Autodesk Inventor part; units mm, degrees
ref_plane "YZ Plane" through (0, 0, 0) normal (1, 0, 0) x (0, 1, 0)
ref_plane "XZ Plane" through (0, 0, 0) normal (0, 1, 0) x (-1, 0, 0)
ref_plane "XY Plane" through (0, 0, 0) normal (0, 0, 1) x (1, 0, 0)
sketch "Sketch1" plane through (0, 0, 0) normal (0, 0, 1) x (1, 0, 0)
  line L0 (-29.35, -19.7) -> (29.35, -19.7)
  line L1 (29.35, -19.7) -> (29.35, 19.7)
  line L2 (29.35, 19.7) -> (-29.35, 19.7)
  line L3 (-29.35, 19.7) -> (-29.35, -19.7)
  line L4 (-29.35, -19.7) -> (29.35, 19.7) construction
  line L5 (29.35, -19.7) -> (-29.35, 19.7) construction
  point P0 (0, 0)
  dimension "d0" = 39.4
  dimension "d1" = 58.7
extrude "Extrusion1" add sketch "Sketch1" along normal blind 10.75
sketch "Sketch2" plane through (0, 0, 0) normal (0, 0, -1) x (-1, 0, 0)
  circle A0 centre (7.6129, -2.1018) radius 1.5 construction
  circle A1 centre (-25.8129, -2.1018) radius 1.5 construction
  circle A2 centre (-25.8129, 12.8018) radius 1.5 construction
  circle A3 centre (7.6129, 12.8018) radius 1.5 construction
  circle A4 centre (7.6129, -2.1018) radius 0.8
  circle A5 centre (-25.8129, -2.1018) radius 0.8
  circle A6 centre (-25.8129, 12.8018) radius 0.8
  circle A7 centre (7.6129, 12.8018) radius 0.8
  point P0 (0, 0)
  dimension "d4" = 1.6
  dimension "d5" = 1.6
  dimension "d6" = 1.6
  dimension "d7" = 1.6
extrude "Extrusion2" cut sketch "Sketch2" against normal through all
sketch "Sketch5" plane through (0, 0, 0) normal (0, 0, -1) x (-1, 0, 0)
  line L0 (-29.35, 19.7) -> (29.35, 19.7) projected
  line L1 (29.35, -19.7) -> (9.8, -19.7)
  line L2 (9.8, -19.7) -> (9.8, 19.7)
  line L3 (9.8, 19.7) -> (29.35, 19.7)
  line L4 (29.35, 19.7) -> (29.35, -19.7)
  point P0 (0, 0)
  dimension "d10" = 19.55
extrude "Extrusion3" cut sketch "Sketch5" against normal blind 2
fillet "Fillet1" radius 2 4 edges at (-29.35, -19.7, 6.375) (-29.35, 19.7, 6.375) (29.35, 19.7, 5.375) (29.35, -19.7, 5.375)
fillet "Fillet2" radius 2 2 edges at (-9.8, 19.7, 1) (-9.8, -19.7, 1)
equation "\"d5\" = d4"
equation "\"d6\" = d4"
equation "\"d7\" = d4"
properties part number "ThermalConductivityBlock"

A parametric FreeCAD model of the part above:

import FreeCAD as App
import Part
import Sketcher


def edges_at(feature, points):
    """Names of the edges that pass closest to the given points."""
    edges = feature.Shape.Edges
    near = lambda p: min(range(len(edges)), key=lambda i: edges[i].distToShape(Part.Vertex(*p))[0])
    return sorted({f"Edge{near(p) + 1}" for p in points})

doc = App.newDocument("Part")
body = doc.addObject("PartDesign::Body", "Body")

# Sketch on XY plane
sketch1 = body.newObject("Sketcher::SketchObject", "Sketch")
sketch1.AttachmentSupport = (doc.getObject("XY_Plane"), [""])
sketch1.MapMode = "FlatFace"
sketch1.addGeometry([
    Part.LineSegment(App.Vector(-29, 20, 0), App.Vector(-29, -20, 0)),
    Part.LineSegment(App.Vector(-29, -20, 0), App.Vector(29, -20, 0)),
    Part.LineSegment(App.Vector(29, -20, 0), App.Vector(29, 20, 0)),
    Part.LineSegment(App.Vector(29, 20, 0), App.Vector(-29, 20, 0)),
], False)
sketch1.addConstraint([
    Sketcher.Constraint("Coincident", 0, 2, 1, 1),
    Sketcher.Constraint("Coincident", 1, 2, 2, 1),
    Sketcher.Constraint("Coincident", 2, 2, 3, 1),
    Sketcher.Constraint("Coincident", 3, 2, 0, 1),
    Sketcher.Constraint("Vertical", 0),
    Sketcher.Constraint("Horizontal", 1),
    Sketcher.Constraint("Vertical", 2),
    Sketcher.Constraint("Horizontal", 3),
    Sketcher.Constraint("Symmetric", 0, 2, 2, 2, -1, 1),
    Sketcher.Constraint("DistanceX", 1, 1, 1, 2, 58.7),
    Sketcher.Constraint("DistanceY", 0, 2, 0, 1, 39.4),
])
pad1 = body.newObject("PartDesign::Pad", "Pad")
pad1.Profile = sketch1
pad1.Length = 10.75

# Sketch on XY plane
sketch2 = body.newObject("Sketcher::SketchObject", "Sketch001")
sketch2.AttachmentSupport = (doc.getObject("XY_Plane"), [""])
sketch2.MapMode = "FlatFace"
sketch2.addGeometry([
    Part.Circle(App.Vector(-7.6, -2.1, 0), App.Vector(0, 0, 1), 0.8),
    Part.Circle(App.Vector(25.8, -2.1, 0), App.Vector(0, 0, 1), 0.8),
    Part.Circle(App.Vector(25.8, 12.8, 0), App.Vector(0, 0, 1), 0.8),
    Part.Circle(App.Vector(-7.6, 12.8, 0), App.Vector(0, 0, 1), 0.8),
], False)
sketch2.addConstraint([
    Sketcher.Constraint("Equal", 0, 1),
    Sketcher.Constraint("Equal", 1, 2),
    Sketcher.Constraint("Equal", 2, 3),
    Sketcher.Constraint("Horizontal", 0, 3, 1, 3),
    Sketcher.Constraint("Horizontal", 2, 3, 3, 3),
    Sketcher.Constraint("Vertical", 1, 3, 2, 3),
    Sketcher.Constraint("Vertical", 0, 3, 3, 3),
    Sketcher.Constraint("Diameter", 0, 1.6),
    Sketcher.Constraint("DistanceX", 0, 3, -1, 1, 7.613),
    Sketcher.Constraint("DistanceX", -1, 1, 1, 3, 25.813),
    Sketcher.Constraint("DistanceY", 0, 3, -1, 1, 2.1018),
    Sketcher.Constraint("DistanceY", -1, 1, 2, 3, 12.8018),
])
pocket1 = body.newObject("PartDesign::Pocket", "Pocket")
pocket1.Profile = sketch2
pocket1.Type = "ThroughAll"
pocket1.Reversed = True

# Sketch on XY plane
sketch3 = body.newObject("Sketcher::SketchObject", "Sketch002")
sketch3.AttachmentSupport = (doc.getObject("XY_Plane"), [""])
sketch3.MapMode = "FlatFace"
sketch3.addGeometry([
    Part.LineSegment(App.Vector(-29, 20, 0), App.Vector(-10, 20, 0)),
    Part.LineSegment(App.Vector(-10, 20, 0), App.Vector(-10, -20, 0)),
    Part.LineSegment(App.Vector(-10, -20, 0), App.Vector(-29, -20, 0)),
    Part.LineSegment(App.Vector(-29, -20, 0), App.Vector(-29, 20, 0)),
], False)
sketch3.addConstraint([
    Sketcher.Constraint("Coincident", 0, 2, 1, 1),
    Sketcher.Constraint("Coincident", 1, 2, 2, 1),
    Sketcher.Constraint("Coincident", 2, 2, 3, 1),
    Sketcher.Constraint("Coincident", 3, 2, 0, 1),
    Sketcher.Constraint("Horizontal", 0),
    Sketcher.Constraint("Vertical", 1),
    Sketcher.Constraint("Horizontal", 2),
    Sketcher.Constraint("Vertical", 3),
    Sketcher.Constraint("DistanceX", 0, 1, 0, 2, 19.55),
    Sketcher.Constraint("DistanceY", 1, 2, 1, 1, 39.4),
    Sketcher.Constraint("DistanceX", 0, 2, -1, 1, 9.8),
    Sketcher.Constraint("DistanceY", -1, 1, 0, 2, 19.7),
])
pocket2 = body.newObject("PartDesign::Pocket", "Pocket001")
pocket2.Profile = sketch3
pocket2.Length = 2
pocket2.Reversed = True
doc.recompute()

fillet = body.newObject("PartDesign::Fillet", "Fillet")
fillet.Base = (pocket2, edges_at(pocket2, [
    (-29.35, -19.7, 6.375),
    (-29.35, 19.7, 6.375),
    (29.35, 19.7, 5.375),
    (29.35, -19.7, 5.375),
]))
fillet.Radius = 2
doc.recompute()

fillet2 = body.newObject("PartDesign::Fillet", "Fillet001")
fillet2.Base = (fillet, edges_at(fillet, [(-9.8, 19.7, 1), (-9.8, -19.7, 1)]))
fillet2.Radius = 2

doc.recompute()
